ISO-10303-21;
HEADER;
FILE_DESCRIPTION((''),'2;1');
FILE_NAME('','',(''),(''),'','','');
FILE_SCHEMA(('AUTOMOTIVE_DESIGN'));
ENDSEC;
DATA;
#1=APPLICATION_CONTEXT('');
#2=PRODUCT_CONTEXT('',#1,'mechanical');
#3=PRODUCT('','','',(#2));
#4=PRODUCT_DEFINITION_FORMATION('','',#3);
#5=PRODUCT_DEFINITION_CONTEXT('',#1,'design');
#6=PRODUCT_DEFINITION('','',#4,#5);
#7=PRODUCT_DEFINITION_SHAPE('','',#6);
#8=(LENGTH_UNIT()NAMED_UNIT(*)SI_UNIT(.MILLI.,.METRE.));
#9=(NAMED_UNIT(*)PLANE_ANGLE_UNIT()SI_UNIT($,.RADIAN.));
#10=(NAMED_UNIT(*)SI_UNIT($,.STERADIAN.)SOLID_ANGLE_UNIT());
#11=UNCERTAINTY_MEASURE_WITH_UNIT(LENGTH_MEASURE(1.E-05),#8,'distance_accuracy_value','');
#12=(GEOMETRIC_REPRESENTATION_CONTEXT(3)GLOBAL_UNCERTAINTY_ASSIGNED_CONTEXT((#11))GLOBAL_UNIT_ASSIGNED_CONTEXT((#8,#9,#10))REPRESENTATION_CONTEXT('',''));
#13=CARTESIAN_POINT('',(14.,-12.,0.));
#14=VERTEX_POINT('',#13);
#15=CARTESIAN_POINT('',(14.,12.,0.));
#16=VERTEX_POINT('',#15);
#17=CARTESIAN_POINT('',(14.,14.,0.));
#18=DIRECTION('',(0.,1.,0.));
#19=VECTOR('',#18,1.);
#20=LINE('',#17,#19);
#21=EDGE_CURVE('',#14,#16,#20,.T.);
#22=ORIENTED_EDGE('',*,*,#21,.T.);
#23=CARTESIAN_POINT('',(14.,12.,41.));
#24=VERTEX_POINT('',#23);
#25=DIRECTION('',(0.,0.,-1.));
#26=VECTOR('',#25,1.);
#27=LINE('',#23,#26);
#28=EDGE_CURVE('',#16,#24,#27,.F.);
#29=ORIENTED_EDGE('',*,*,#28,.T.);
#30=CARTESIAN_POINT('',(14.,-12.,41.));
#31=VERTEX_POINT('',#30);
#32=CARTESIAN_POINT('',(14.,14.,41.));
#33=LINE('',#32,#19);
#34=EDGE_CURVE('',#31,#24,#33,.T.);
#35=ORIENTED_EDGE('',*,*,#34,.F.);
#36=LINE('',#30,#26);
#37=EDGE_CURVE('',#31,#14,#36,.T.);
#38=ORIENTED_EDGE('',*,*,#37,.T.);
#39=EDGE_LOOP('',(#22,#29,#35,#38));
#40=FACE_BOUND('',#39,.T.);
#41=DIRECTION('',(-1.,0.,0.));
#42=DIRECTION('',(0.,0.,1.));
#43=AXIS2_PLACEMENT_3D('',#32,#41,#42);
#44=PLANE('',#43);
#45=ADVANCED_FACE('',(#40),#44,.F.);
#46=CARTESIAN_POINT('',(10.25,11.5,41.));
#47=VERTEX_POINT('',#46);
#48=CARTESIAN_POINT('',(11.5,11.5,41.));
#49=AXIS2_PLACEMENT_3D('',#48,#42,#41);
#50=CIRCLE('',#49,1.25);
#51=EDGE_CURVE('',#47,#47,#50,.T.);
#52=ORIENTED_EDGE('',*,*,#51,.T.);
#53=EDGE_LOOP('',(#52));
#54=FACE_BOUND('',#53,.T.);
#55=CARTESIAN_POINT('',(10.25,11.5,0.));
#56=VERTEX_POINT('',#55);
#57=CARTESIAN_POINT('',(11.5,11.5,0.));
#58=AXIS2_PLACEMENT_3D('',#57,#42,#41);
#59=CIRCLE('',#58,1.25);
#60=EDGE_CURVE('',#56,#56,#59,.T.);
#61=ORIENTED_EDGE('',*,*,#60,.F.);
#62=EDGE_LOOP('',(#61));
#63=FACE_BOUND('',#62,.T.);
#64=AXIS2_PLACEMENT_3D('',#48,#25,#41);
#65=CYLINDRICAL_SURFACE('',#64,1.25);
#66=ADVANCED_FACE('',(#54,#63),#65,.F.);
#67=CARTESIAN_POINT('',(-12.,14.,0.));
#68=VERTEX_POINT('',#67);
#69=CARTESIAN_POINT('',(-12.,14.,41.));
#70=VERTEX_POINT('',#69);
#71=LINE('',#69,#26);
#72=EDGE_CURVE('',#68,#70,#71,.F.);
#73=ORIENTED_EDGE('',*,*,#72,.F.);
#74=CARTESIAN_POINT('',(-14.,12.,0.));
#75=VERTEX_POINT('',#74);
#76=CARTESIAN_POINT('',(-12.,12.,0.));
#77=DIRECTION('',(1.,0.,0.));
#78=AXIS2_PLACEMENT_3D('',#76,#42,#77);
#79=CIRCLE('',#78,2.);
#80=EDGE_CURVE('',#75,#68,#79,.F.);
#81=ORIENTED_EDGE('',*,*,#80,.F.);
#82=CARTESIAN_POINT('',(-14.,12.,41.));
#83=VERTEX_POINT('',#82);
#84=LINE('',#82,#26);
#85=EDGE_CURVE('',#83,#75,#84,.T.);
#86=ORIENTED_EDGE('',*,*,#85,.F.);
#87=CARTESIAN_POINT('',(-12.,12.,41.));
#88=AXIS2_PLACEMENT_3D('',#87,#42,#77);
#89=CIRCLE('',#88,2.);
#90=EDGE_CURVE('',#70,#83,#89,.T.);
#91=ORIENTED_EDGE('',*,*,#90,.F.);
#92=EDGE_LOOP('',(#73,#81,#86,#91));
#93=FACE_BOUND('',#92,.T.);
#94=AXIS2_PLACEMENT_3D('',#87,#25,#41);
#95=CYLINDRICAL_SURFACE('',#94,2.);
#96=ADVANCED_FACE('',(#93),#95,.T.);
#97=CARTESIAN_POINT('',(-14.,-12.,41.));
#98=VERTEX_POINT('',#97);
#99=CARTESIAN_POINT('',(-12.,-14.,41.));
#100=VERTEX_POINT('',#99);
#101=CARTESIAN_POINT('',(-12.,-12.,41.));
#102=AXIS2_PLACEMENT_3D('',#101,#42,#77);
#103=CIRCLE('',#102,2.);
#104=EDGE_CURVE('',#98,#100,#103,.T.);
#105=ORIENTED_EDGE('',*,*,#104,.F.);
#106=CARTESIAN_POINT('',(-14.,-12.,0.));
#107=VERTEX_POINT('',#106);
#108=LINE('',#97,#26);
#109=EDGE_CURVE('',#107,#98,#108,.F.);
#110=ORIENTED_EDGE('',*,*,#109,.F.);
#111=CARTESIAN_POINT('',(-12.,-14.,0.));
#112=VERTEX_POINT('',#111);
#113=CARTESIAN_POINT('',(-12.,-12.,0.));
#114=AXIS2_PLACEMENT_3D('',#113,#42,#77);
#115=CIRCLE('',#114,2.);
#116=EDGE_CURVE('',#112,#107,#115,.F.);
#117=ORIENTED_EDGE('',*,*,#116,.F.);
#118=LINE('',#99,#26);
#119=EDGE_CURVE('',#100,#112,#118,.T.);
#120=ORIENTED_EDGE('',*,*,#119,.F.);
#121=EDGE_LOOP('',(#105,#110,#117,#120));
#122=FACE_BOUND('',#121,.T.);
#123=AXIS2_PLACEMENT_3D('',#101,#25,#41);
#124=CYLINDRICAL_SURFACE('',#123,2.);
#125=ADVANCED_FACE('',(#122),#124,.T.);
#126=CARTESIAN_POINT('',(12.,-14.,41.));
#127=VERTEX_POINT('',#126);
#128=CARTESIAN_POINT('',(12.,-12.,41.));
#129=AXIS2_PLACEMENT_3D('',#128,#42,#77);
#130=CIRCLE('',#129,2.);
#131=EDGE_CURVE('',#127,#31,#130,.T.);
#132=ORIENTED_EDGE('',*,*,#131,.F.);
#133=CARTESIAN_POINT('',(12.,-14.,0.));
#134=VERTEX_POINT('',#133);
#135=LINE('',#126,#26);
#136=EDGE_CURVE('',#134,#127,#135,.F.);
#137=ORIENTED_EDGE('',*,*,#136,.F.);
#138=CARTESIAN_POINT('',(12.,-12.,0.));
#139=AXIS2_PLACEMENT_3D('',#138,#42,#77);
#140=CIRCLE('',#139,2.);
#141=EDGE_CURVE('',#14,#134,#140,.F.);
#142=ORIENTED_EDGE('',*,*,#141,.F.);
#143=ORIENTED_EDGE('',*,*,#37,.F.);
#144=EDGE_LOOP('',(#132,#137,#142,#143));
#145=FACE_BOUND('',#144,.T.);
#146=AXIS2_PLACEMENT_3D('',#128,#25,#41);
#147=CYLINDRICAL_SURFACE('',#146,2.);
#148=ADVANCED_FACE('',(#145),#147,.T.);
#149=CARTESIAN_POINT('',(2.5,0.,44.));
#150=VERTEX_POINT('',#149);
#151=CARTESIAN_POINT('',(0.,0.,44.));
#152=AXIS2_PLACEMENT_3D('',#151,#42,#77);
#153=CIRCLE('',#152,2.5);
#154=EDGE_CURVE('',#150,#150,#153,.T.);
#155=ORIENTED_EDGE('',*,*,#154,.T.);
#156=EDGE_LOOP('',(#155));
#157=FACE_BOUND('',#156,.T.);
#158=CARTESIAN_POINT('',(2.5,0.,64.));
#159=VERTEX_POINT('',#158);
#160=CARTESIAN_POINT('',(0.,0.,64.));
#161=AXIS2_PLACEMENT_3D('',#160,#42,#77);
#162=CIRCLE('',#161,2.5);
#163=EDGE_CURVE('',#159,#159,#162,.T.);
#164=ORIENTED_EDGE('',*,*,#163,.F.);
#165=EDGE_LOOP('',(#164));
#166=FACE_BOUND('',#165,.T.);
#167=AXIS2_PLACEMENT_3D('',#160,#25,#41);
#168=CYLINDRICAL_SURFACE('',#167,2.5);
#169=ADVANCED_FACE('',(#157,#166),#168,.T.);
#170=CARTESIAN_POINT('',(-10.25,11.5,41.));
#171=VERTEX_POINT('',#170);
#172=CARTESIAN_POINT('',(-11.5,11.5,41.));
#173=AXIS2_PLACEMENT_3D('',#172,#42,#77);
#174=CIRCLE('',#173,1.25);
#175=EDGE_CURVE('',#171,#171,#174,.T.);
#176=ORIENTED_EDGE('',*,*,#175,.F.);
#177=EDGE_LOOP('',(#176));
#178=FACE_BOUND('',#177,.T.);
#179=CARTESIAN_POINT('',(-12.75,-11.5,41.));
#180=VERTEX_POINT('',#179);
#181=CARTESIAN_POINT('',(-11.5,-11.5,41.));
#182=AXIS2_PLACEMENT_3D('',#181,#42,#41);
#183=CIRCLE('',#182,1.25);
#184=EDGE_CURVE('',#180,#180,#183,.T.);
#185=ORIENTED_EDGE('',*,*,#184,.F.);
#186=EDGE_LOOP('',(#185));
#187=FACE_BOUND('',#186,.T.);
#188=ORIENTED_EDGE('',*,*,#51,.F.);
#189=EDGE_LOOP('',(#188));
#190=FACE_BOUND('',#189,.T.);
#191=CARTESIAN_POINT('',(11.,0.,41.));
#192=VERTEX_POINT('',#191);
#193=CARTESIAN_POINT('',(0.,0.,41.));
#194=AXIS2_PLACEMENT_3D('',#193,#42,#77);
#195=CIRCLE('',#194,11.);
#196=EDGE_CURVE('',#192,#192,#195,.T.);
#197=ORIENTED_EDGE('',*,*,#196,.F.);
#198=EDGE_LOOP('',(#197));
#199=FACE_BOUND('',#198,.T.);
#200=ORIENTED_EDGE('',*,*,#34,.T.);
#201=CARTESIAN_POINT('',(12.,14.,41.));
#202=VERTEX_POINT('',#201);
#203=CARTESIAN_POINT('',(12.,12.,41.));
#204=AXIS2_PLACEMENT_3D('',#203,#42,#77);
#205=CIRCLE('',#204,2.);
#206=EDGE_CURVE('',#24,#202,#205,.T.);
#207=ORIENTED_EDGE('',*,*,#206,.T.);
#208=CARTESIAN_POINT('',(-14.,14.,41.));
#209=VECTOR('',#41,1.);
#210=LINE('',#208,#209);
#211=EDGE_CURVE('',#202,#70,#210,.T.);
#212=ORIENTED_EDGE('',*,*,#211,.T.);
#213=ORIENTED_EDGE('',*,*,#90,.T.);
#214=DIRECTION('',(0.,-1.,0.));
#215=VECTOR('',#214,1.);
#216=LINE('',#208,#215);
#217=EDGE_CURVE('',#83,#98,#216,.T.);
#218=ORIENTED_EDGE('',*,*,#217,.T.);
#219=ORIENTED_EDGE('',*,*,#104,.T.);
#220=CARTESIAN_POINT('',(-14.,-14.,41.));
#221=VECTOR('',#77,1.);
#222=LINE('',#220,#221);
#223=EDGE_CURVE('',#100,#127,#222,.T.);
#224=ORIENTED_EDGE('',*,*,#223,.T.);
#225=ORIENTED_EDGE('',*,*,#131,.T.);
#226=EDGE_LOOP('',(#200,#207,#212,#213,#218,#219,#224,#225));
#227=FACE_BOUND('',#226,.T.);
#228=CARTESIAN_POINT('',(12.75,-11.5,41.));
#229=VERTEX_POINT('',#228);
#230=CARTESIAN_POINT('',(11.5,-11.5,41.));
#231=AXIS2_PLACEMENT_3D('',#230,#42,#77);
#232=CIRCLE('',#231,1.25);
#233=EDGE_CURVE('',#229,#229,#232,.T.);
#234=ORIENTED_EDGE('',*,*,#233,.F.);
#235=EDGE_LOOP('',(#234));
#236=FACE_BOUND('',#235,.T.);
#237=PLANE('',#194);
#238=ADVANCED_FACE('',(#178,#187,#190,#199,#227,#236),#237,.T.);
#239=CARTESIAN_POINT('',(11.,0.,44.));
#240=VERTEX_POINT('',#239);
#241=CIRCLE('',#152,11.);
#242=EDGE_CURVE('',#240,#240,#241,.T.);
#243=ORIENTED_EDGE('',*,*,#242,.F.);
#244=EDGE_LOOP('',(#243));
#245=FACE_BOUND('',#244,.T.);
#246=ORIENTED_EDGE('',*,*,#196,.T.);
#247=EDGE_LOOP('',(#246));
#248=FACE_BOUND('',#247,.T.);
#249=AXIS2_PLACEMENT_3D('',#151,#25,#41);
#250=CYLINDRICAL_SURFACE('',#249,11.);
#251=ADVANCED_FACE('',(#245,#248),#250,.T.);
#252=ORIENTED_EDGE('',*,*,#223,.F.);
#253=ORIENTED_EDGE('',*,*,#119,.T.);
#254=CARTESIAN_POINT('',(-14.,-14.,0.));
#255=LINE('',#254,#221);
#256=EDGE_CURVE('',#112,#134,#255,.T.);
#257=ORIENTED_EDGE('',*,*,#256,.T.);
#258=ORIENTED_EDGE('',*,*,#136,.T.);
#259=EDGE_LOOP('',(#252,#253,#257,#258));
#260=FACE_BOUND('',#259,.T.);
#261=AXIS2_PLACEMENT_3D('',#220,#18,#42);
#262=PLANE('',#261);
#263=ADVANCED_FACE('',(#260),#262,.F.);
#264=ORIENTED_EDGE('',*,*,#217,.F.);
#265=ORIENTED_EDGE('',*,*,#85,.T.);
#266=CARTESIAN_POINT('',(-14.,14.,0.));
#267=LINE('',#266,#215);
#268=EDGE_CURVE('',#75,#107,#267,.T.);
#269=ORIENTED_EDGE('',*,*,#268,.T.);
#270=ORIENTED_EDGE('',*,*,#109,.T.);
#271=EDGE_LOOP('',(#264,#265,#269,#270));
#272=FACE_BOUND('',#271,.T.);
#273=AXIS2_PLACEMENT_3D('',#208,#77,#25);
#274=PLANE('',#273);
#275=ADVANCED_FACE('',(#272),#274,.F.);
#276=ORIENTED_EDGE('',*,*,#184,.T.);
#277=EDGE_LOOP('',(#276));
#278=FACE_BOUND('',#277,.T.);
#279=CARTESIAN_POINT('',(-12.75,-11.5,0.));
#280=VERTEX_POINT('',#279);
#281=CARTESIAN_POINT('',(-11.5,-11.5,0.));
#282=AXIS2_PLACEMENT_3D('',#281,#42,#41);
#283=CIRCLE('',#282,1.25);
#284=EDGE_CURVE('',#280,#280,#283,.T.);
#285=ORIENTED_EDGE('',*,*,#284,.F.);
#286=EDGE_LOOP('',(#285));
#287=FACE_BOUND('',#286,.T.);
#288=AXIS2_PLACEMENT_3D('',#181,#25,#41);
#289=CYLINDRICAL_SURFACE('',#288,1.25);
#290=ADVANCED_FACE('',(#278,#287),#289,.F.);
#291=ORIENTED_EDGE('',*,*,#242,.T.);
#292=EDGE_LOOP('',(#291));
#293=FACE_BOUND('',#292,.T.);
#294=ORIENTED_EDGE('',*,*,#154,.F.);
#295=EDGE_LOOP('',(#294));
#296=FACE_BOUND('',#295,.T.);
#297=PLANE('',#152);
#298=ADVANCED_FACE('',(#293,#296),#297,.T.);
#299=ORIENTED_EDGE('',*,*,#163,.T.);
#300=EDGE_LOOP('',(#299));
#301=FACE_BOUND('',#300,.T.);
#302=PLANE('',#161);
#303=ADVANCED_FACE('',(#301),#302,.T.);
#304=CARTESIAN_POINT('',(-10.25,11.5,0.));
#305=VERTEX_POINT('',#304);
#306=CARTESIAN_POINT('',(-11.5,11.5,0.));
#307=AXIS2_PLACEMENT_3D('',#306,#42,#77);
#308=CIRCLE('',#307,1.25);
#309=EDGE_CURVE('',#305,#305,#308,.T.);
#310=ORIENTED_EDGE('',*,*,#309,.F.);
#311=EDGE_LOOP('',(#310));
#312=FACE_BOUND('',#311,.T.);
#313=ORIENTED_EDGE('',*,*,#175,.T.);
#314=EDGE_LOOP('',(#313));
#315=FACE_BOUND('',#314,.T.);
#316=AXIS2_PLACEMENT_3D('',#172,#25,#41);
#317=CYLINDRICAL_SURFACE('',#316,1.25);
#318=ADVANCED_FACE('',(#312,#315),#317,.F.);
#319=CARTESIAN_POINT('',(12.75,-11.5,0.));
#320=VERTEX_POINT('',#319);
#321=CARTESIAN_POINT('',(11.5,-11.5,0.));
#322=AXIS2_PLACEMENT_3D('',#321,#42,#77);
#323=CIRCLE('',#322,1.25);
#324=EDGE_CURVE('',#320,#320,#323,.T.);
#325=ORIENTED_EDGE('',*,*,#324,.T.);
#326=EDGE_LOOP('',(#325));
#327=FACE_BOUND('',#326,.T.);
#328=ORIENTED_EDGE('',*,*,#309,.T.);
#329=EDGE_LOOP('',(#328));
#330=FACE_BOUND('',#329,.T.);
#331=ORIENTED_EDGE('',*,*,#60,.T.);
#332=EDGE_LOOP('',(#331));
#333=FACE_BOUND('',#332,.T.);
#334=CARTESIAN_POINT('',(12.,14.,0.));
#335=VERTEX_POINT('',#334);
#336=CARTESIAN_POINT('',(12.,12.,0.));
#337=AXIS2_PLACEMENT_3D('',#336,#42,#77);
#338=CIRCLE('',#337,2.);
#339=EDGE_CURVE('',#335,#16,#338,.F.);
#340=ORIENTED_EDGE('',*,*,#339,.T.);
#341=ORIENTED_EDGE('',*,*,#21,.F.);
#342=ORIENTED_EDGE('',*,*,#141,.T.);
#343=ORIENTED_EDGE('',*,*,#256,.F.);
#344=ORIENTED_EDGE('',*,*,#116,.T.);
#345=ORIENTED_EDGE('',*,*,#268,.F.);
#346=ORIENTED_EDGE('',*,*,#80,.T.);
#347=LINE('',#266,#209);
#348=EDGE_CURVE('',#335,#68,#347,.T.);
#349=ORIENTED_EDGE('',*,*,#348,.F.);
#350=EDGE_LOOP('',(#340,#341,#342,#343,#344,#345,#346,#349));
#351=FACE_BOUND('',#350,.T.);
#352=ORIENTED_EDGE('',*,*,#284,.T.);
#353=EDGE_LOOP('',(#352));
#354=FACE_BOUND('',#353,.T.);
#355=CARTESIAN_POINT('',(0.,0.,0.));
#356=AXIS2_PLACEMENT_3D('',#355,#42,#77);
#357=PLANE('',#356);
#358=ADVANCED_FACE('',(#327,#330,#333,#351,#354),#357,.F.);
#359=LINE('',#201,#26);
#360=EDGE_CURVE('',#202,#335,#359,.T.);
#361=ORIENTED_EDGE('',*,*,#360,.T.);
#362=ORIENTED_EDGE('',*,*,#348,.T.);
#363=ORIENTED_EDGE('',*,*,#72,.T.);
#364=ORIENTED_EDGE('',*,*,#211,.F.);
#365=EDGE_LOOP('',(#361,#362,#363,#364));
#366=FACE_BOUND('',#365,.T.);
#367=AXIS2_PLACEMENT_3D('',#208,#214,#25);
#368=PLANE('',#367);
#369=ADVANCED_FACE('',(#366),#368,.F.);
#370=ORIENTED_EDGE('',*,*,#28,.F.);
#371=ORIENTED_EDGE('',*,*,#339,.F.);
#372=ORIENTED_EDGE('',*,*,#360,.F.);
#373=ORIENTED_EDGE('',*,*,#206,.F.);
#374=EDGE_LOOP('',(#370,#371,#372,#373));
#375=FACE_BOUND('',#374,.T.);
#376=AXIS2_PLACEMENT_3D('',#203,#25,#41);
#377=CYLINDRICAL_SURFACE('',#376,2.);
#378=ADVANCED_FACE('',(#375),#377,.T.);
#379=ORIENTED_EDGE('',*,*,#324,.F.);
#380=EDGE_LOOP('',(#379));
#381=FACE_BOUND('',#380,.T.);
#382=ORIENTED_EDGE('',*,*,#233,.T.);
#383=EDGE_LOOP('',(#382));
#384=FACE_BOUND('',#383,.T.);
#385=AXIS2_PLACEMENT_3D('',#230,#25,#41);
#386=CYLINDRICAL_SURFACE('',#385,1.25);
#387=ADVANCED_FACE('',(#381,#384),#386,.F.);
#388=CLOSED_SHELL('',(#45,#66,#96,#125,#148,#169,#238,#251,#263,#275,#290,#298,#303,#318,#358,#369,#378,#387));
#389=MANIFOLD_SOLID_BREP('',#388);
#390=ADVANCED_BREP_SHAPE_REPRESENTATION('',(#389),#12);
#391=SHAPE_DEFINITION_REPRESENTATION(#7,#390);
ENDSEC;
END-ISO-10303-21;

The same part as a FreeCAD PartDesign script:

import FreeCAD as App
import Part
import Sketcher
Q = App.Units.Quantity


def edges_at(feature, points):
    """Names of the edges that pass closest to the given points."""
    edges = feature.Shape.Edges
    near = lambda p: min(range(len(edges)), key=lambda i: edges[i].distToShape(Part.Vertex(*p))[0])
    return sorted({f"Edge{near(p) + 1}" for p in points})


def add_polygon(sketch, points):
    """Adds a closed chain of lines whose ends are joined by coincident constraints."""
    first, n = sketch.GeometryCount, len(points)
    for a, b in zip(points, points[1:] + points[:1]):
        sketch.addGeometry(Part.LineSegment(App.Vector(*a, 0), App.Vector(*b, 0)), False)
    for i in range(n):
        sketch.addConstraint(Sketcher.Constraint("Coincident", first + i, 2, first + (i + 1) % n, 1))

doc = App.newDocument("Part")
body = doc.addObject("PartDesign::Body", "Body")

# Sketch on XY plane
sketch1 = body.newObject("Sketcher::SketchObject", "Sketch")
sketch1.AttachmentSupport = (doc.getObject("XY_Plane"), [""])
sketch1.MapMode = "FlatFace"
add_polygon(sketch1, [(-14, 14), (-14, -14), (14, -14), (14, 14)])  # lines 0-3
sketch1.addGeometry(Part.Circle(App.Vector(-11.5, -11.5, 0), App.Vector(0, 0, 1), 1.2), False)  # 4
sketch1.addGeometry(Part.Circle(App.Vector(11.5, -11.5, 0), App.Vector(0, 0, 1), 1.2), False)  # 5
sketch1.addGeometry(Part.Circle(App.Vector(-11.5, 11.5, 0), App.Vector(0, 0, 1), 1.2), False)  # 6
sketch1.addGeometry(Part.Circle(App.Vector(11.5, 11.5, 0), App.Vector(0, 0, 1), 1.2), False)  # 7
sketch1.addConstraint(Sketcher.Constraint("Vertical", 0))
sketch1.addConstraint(Sketcher.Constraint("Horizontal", 1))
sketch1.addConstraint(Sketcher.Constraint("Vertical", 2))
sketch1.addConstraint(Sketcher.Constraint("Horizontal", 3))
sketch1.addConstraint(Sketcher.Constraint("Equal", 4, 5))
sketch1.addConstraint(Sketcher.Constraint("Equal", 5, 6))
sketch1.addConstraint(Sketcher.Constraint("Equal", 6, 7))
sketch1.addConstraint(Sketcher.Constraint("Symmetric", 5, 3, 6, 3, -1, 1))
sketch1.addConstraint(Sketcher.Constraint("Symmetric", 4, 3, 7, 3, -1, 1))
sketch1.addConstraint(Sketcher.Constraint("Symmetric", 0, 2, 2, 2, -1, 1))
sketch1.addConstraint(Sketcher.Constraint("Symmetric", 4, 3, 5, 3, -2))
sketch1.addConstraint(Sketcher.Constraint("Equal", 3, 0))
sketch1.addConstraint(Sketcher.Constraint("Diameter", 4, Q("2.5 mm")))
sketch1.addConstraint(Sketcher.Constraint("DistanceX", 1, 1, 1, 2, Q("28 mm")))
sketch1.addConstraint(Sketcher.Constraint("DistanceX", 4, 3, 5, 3, Q("23 mm")))
sketch1.addConstraint(Sketcher.Constraint("DistanceY", 4, 3, 6, 3, Q("23 mm")))
pad1 = body.newObject("PartDesign::Pad", "Pad")
pad1.Profile = sketch1
pad1.Length = 41

# Sketch on XY plane
sketch2 = body.newObject("Sketcher::SketchObject", "Sketch001")
sketch2.AttachmentSupport = (doc.getObject("XY_Plane"), [""])
sketch2.MapMode = "FlatFace"
sketch2.AttachmentOffset = App.Placement(App.Vector(0, 0, 41), App.Rotation())
sketch2.addGeometry(Part.Circle(App.Vector(0, 0, 0), App.Vector(0, 0, 1), 11), False)
sketch2.addConstraint(Sketcher.Constraint("Coincident", 0, 3, -1, 1))
sketch2.addConstraint(Sketcher.Constraint("Diameter", 0, Q("22 mm")))
pad2 = body.newObject("PartDesign::Pad", "Pad001")
pad2.Profile = sketch2
pad2.Length = 3

# Sketch on XY plane
sketch3 = body.newObject("Sketcher::SketchObject", "Sketch002")
sketch3.AttachmentSupport = (doc.getObject("XY_Plane"), [""])
sketch3.MapMode = "FlatFace"
sketch3.AttachmentOffset = App.Placement(App.Vector(0, 0, 44), App.Rotation())
sketch3.addGeometry(Part.Circle(App.Vector(0, 0, 0), App.Vector(0, 0, 1), 2.5), False)
sketch3.addConstraint(Sketcher.Constraint("Coincident", 0, 3, -1, 1))
sketch3.addConstraint(Sketcher.Constraint("Diameter", 0, Q("5 mm")))
pad3 = body.newObject("PartDesign::Pad", "Pad002")
pad3.Profile = sketch3
pad3.Length = 20
doc.recompute()

fillet = body.newObject("PartDesign::Fillet", "Fillet")
fillet.Base = (pad3, edges_at(pad3, [
    (14, -14, 20.5),
    (-14, -14, 20.5),
    (-14, 14, 20.5),
    (14, 14, 20.5),
]))
fillet.Radius = 2

doc.recompute()
